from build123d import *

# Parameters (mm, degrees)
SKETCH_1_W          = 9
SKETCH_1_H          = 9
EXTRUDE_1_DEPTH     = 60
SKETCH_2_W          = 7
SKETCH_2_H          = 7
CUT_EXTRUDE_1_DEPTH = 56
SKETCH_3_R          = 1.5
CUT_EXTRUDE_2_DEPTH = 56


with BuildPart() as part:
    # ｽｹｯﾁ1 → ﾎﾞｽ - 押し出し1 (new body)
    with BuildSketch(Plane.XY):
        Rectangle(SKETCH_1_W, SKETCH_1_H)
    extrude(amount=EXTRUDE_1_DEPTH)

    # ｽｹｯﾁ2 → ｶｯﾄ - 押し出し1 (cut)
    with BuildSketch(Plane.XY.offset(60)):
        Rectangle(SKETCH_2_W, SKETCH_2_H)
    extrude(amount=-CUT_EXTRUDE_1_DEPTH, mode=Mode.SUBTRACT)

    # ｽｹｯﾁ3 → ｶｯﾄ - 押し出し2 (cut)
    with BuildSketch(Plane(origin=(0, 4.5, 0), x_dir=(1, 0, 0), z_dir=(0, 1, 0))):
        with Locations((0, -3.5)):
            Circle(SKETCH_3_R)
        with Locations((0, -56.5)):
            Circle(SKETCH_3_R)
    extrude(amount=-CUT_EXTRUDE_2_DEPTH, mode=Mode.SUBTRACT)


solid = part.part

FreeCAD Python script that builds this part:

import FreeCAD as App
import Part
import Sketcher
Q = App.Units.Quantity


def add_polygon(sketch, points):
    """Adds a closed chain of lines whose ends are joined by coincident constraints."""
    first, n = sketch.GeometryCount, len(points)
    for a, b in zip(points, points[1:] + points[:1]):
        sketch.addGeometry(Part.LineSegment(App.Vector(*a, 0), App.Vector(*b, 0)), False)
    for i in range(n):
        sketch.addConstraint(Sketcher.Constraint("Coincident", first + i, 2, first + (i + 1) % n, 1))

doc = App.newDocument("Part")
body = doc.addObject("PartDesign::Body", "Body")

# Sketch on XY plane
sketch1 = body.newObject("Sketcher::SketchObject", "Sketch")
sketch1.AttachmentSupport = (doc.getObject("XY_Plane"), [""])
sketch1.MapMode = "FlatFace"
add_polygon(sketch1, [(-4, 4), (-4, -4), (4, -4), (4, 4)])  # lines 0-3
sketch1.addConstraint([
    Sketcher.Constraint("Vertical", 0),
    Sketcher.Constraint("Horizontal", 1),
    Sketcher.Constraint("Vertical", 2),
    Sketcher.Constraint("Horizontal", 3),
    Sketcher.Constraint("Symmetric", 0, 2, 2, 2, -1, 1),
    Sketcher.Constraint("Equal", 3, 0),
    Sketcher.Constraint("DistanceX", 1, 1, 1, 2, Q("9 mm")),
])
pad1 = body.newObject("PartDesign::Pad", "Pad")
pad1.Profile = sketch1
pad1.Length = 60

# Sketch on XY plane
sketch2 = body.newObject("Sketcher::SketchObject", "Sketch001")
sketch2.AttachmentSupport = (doc.getObject("XY_Plane"), [""])
sketch2.MapMode = "FlatFace"
sketch2.AttachmentOffset = App.Placement(App.Vector(0, 0, 60), App.Rotation())
add_polygon(sketch2, [(-4, 4), (-4, -4), (4, -4), (4, 4)])  # lines 0-3
sketch2.addConstraint([
    Sketcher.Constraint("Vertical", 0),
    Sketcher.Constraint("Horizontal", 1),
    Sketcher.Constraint("Vertical", 2),
    Sketcher.Constraint("Horizontal", 3),
    Sketcher.Constraint("Symmetric", 0, 2, 2, 2, -1, 1),
    Sketcher.Constraint("Equal", 3, 0),
    Sketcher.Constraint("DistanceX", 1, 1, 1, 2, Q("7 mm")),
])
pocket1 = body.newObject("PartDesign::Pocket", "Pocket")
pocket1.Profile = sketch2
pocket1.Length = 56

# Sketch on XZ plane
sketch3 = body.newObject("Sketcher::SketchObject", "Sketch002")
sketch3.AttachmentSupport = (doc.getObject("XZ_Plane"), [""])
sketch3.MapMode = "FlatFace"
sketch3.AttachmentOffset = App.Placement(App.Vector(0, 0, -4.5), App.Rotation())
sketch3.addGeometry([
    Part.Circle(App.Vector(0, 3.5, 0), App.Vector(0, 0, 1), 1.5),
    Part.Circle(App.Vector(0, 56.5, 0), App.Vector(0, 0, 1), 1.5),
], False)
sketch3.addConstraint([
    Sketcher.Constraint("Equal", 0, 1),
    Sketcher.Constraint("PointOnObject", 0, 3, -2),
    Sketcher.Constraint("PointOnObject", 1, 3, -2),
    Sketcher.Constraint("Diameter", 0, Q("3 mm")),
    Sketcher.Constraint("DistanceY", 0, 3, 1, 3, Q("53 mm")),
    Sketcher.Constraint("DistanceY", -1, 1, 0, 3, Q("3.5 mm")),
])
pocket2 = body.newObject("PartDesign::Pocket", "Pocket001")
pocket2.Profile = sketch3
pocket2.Length = 56
pocket2.Reversed = True

doc.recompute()
